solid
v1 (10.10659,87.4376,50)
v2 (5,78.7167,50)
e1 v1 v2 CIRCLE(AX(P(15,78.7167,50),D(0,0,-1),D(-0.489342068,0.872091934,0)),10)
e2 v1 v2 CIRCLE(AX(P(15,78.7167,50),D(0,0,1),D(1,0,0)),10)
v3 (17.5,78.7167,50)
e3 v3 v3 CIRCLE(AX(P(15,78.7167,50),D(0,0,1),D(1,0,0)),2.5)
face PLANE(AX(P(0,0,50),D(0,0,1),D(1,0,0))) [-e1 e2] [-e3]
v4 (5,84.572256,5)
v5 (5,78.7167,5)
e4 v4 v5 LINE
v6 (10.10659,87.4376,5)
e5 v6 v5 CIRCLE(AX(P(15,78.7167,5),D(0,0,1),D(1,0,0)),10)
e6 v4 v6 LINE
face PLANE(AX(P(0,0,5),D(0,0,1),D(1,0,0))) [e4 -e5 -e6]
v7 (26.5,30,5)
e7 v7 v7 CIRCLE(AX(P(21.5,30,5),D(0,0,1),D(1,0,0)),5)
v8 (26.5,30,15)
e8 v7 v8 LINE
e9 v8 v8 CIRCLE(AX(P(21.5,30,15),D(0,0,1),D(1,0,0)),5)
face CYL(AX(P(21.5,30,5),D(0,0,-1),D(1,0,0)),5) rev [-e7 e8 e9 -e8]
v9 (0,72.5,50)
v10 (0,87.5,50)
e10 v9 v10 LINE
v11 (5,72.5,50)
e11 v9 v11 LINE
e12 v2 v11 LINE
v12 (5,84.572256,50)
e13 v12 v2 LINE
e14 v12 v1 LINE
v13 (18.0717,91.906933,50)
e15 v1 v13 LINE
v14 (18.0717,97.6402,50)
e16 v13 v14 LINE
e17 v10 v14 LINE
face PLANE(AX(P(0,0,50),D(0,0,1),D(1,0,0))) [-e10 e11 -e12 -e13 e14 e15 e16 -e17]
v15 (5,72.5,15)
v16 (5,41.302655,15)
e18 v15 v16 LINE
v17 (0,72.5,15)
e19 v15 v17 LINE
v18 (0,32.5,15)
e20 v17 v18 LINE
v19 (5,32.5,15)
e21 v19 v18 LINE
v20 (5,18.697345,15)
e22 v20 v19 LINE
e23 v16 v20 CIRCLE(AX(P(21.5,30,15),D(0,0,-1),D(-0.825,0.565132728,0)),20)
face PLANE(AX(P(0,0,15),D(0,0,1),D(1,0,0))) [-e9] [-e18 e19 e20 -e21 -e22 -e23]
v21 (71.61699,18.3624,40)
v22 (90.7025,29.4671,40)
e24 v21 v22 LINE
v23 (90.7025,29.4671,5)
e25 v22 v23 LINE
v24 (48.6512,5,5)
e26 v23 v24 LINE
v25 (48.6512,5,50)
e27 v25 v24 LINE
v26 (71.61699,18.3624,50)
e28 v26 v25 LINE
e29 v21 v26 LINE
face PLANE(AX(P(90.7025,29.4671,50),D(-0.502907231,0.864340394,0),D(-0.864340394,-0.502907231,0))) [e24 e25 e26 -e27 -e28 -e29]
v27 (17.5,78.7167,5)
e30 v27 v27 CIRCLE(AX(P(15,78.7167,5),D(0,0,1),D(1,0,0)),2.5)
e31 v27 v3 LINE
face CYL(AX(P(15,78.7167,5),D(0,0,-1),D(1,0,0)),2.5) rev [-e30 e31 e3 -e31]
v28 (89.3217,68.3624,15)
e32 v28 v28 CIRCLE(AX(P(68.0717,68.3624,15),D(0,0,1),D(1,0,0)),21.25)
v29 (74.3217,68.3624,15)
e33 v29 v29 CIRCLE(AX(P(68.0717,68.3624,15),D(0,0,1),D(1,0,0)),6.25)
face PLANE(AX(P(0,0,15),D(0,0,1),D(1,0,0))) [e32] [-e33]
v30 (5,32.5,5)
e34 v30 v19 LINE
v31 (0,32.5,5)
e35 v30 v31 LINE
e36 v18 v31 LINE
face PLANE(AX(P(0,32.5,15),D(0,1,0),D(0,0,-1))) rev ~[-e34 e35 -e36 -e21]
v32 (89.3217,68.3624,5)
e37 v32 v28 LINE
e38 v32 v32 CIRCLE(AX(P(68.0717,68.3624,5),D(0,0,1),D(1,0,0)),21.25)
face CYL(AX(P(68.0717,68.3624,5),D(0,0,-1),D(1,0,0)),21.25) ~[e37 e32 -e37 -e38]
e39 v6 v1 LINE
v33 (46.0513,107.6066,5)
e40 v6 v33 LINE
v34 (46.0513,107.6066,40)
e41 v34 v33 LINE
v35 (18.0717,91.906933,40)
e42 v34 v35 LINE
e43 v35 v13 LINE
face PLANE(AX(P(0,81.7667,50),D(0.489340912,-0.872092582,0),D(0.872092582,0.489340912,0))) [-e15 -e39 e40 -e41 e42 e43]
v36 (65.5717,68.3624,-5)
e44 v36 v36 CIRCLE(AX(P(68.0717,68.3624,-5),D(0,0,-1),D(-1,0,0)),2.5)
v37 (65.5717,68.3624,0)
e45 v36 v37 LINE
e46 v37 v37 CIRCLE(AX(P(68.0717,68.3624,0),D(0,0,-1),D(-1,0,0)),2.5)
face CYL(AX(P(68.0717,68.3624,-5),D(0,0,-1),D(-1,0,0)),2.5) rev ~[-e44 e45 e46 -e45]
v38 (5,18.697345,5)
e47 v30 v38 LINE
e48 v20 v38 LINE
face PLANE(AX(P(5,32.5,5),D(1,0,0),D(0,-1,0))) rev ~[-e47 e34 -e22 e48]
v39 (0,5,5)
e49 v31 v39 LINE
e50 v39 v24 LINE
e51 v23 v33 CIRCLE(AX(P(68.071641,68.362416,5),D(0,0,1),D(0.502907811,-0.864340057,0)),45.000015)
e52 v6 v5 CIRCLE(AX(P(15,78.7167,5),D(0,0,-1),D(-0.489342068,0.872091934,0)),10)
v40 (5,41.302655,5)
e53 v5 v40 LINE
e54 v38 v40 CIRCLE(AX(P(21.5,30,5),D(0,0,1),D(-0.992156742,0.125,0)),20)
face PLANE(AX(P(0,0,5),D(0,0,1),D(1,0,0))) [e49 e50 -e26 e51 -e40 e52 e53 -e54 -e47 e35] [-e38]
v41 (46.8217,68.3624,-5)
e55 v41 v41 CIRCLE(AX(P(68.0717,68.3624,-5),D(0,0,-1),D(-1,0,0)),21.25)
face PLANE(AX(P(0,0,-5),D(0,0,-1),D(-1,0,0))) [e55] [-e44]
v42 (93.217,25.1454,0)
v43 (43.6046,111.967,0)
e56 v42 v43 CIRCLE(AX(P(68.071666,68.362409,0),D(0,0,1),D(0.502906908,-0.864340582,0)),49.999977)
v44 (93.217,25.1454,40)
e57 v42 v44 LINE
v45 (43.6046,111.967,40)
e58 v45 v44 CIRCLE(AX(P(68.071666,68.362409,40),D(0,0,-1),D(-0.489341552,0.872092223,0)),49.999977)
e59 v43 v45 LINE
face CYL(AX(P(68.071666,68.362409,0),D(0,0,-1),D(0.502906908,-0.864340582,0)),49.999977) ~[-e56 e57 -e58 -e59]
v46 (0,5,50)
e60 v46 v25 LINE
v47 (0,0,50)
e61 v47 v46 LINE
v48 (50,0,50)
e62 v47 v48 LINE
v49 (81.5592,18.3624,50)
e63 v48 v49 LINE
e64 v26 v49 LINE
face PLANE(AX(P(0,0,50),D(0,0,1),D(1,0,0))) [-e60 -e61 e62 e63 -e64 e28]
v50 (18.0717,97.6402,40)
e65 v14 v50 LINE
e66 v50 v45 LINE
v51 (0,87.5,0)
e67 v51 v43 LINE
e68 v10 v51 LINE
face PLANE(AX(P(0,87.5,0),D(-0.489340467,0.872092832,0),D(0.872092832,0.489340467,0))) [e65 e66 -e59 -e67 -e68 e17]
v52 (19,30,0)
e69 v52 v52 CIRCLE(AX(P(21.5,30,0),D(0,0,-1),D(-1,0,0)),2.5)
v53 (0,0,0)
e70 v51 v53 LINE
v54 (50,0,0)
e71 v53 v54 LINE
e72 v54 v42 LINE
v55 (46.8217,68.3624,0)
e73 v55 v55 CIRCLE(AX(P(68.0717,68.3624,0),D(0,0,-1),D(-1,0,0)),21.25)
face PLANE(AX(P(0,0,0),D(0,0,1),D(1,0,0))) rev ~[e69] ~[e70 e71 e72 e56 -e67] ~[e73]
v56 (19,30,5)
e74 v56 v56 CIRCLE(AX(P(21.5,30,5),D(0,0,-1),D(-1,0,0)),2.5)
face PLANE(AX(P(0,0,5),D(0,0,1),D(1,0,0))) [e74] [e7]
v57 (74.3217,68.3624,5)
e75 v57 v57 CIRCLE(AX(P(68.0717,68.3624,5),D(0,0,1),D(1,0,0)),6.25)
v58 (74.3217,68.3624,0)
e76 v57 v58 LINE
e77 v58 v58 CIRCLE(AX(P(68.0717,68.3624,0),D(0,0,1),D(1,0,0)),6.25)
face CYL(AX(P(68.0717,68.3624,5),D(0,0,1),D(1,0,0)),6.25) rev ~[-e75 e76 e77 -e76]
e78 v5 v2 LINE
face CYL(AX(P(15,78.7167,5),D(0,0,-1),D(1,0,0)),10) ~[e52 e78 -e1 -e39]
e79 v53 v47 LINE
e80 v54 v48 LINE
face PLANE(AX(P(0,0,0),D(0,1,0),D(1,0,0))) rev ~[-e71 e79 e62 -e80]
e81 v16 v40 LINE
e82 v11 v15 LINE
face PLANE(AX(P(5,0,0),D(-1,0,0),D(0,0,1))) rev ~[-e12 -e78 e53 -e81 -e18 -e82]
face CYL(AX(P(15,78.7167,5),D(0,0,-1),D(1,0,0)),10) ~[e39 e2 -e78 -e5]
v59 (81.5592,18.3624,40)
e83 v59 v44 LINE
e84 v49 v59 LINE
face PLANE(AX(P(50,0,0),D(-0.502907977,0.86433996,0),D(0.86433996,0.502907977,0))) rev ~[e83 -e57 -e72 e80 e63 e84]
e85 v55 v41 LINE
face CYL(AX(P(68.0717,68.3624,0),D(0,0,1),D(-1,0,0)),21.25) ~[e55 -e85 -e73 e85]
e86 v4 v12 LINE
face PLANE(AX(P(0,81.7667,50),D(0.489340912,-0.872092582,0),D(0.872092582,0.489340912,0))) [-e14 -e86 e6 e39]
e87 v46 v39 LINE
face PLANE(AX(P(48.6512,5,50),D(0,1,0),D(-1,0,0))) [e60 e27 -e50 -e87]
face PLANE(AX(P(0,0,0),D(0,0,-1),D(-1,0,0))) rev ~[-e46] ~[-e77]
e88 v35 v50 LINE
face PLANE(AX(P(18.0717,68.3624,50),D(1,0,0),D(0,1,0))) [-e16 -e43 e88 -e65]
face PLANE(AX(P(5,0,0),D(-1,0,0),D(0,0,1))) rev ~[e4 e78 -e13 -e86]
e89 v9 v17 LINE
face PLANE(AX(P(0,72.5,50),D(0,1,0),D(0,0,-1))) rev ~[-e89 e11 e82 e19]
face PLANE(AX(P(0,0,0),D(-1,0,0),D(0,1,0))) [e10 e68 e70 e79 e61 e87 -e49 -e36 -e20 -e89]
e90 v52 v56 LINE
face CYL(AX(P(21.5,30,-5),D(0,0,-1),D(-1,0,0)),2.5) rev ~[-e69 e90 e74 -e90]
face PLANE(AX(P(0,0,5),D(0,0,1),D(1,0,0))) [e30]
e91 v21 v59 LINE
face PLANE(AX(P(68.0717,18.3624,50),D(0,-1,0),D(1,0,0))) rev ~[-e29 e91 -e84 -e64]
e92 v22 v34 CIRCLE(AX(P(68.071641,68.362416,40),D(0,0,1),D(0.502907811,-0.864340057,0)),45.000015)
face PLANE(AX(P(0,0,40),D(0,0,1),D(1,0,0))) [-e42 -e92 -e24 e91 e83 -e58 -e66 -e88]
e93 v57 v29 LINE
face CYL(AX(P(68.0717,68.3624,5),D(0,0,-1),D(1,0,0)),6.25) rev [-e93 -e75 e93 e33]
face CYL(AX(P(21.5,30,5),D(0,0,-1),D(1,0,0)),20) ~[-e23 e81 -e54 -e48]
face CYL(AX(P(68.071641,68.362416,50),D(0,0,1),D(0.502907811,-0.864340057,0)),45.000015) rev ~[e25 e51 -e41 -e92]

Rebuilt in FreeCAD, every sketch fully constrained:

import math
import FreeCAD as App
import Part
import Sketcher

V = App.Vector
Q = App.Units.Quantity

doc = App.newDocument("Part")
body = doc.addObject("PartDesign::Body", "Body")

# Sketch on XY plane
sketch1 = body.newObject("Sketcher::SketchObject", "Sketch")
sketch1.AttachmentSupport = (doc.getObject("XY_Plane"), [""])
sketch1.MapMode = "FlatFace"
sketch1.addGeometry([
    Part.LineSegment(V(0, 87.5, 0), V(0, 0, 0)),  # 0
    Part.LineSegment(V(0, 0, 0), V(50, 0, 0)),  # 1
    Part.LineSegment(V(50, 0, 0), V(93.217, 25.1454, 0)),  # 2
    Part.ArcOfCircle(Part.Circle(V(68.0717, 68.3624, 0), V(0, 0, 1), 50), math.radians(-59.807522), math.radians(119.297342)),  # 3
    Part.LineSegment(V(43.6046, 111.967, 0), V(0, 87.5, 0)),  # 4
], False)
sketch1.addConstraint([
    Sketcher.Constraint("Coincident", 0, 2, 1, 1),
    Sketcher.Constraint("Coincident", 1, 2, 2, 1),
    Sketcher.Constraint("Tangent", 2, 2, 3, 1),
    Sketcher.Constraint("Tangent", 3, 2, 4, 1),
    Sketcher.Constraint("Coincident", 4, 2, 0, 1),
    Sketcher.Constraint("Vertical", 0),
    Sketcher.Constraint("Horizontal", 1),
    Sketcher.Constraint("Coincident", 0, 2, -1, 1),
    Sketcher.Constraint("Equal", 2, 4),
    Sketcher.Constraint("Radius", 3, Q("50 mm")),
    Sketcher.Constraint("DistanceX", 1, 1, 1, 2, Q("50 mm")),
    Sketcher.Constraint("Distance", 2, Q("50 mm")),
    Sketcher.Constraint("DistanceY", 0, 2, 0, 1, Q("87.5 mm")),
])
pad1 = body.newObject("PartDesign::Pad", "Pad")
pad1.Profile = sketch1
pad1.Length = 50

# Sketch on XY plane
sketch2 = body.newObject("Sketcher::SketchObject", "Sketch001")
sketch2.AttachmentSupport = (doc.getObject("XY_Plane"), [""])
sketch2.MapMode = "FlatFace"
sketch2.AttachmentOffset = App.Placement(V(0, 0, 50), App.Rotation())
sketch2.addGeometry([
    Part.LineSegment(V(0, 81.7667, 0), V(0, 5, 0)),  # 0
    Part.LineSegment(V(0, 5, 0), V(48.6512, 5, 0)),  # 1
    Part.LineSegment(V(48.6512, 5, 0), V(90.7025, 29.4671, 0)),  # 2
    Part.ArcOfCircle(Part.Circle(V(68.0717, 68.3624, 0), V(0, 0, 1), 44.999972), math.radians(-59.807489), math.radians(119.297315)),  # 3
    Part.LineSegment(V(46.0513, 107.6066, 0), V(0, 81.7667, 0)),  # 4
], False)
sketch2.addConstraint([
    Sketcher.Constraint("Coincident", 0, 2, 1, 1),
    Sketcher.Constraint("Coincident", 1, 2, 2, 1),
    Sketcher.Constraint("Tangent", 2, 2, 3, 1),
    Sketcher.Constraint("Tangent", 3, 2, 4, 1),
    Sketcher.Constraint("Coincident", 4, 2, 0, 1),
    Sketcher.Constraint("Vertical", 0),
    Sketcher.Constraint("Horizontal", 1),
    Sketcher.Constraint("PointOnObject", 0, 2, -2),
    Sketcher.Constraint("DistanceY", -1, 1, 0, 2, Q("5 mm")),
    Sketcher.Constraint("Radius", 3, Q("45 mm")),
    Sketcher.Constraint("DistanceX", 1, 1, 1, 2, Q("48.6512 mm")),
    Sketcher.Constraint("DistanceY", 0, 2, 0, 1, Q("76.7667 mm")),
    Sketcher.Constraint("DistanceY", -1, 1, 2, 2, Q("29.467 mm")),
    Sketcher.Constraint("Distance", 2, Q("48.6513 mm")),
])
pocket1 = body.newObject("PartDesign::Pocket", "Pocket")
pocket1.Profile = sketch2
pocket1.Length = 45

# Sketch on YZ plane
sketch3 = body.newObject("Sketcher::SketchObject", "Sketch002")
sketch3.AttachmentSupport = (doc.getObject("YZ_Plane"), [""])
sketch3.MapMode = "FlatFace"
sketch3.addGeometry([
    Part.LineSegment(V(87.5, 50, 0), V(87.5, 0, 0)),
    Part.LineSegment(V(87.5, 0, 0), V(72.5, 0, 0)),
    Part.LineSegment(V(72.5, 0, 0), V(72.5, 50, 0)),
    Part.LineSegment(V(72.5, 50, 0), V(87.5, 50, 0)),
], False)
sketch3.addConstraint([
    Sketcher.Constraint("Coincident", 0, 2, 1, 1),
    Sketcher.Constraint("Coincident", 1, 2, 2, 1),
    Sketcher.Constraint("Coincident", 2, 2, 3, 1),
    Sketcher.Constraint("Coincident", 3, 2, 0, 1),
    Sketcher.Constraint("Vertical", 0),
    Sketcher.Constraint("Horizontal", 1),
    Sketcher.Constraint("Vertical", 2),
    Sketcher.Constraint("Horizontal", 3),
    Sketcher.Constraint("PointOnObject", 0, 2, -1),
    Sketcher.Constraint("DistanceX", 1, 2, 1, 1, Q("15 mm")),
    Sketcher.Constraint("DistanceY", 0, 2, 0, 1, Q("50 mm")),
    Sketcher.Constraint("DistanceX", -1, 1, 0, 2, Q("87.5 mm")),
])
pad2 = body.newObject("PartDesign::Pad", "Pad001")
pad2.Profile = sketch3
pad2.Length = 5

# Sketch on YZ plane
sketch4 = body.newObject("Sketcher::SketchObject", "Sketch003")
sketch4.AttachmentSupport = (doc.getObject("YZ_Plane"), [""])
sketch4.MapMode = "FlatFace"
sketch4.addGeometry([
    Part.LineSegment(V(87.5, 15, 0), V(87.5, 0, 0)),
    Part.LineSegment(V(87.5, 0, 0), V(32.5, 0, 0)),
    Part.LineSegment(V(32.5, 0, 0), V(32.5, 15, 0)),
    Part.LineSegment(V(32.5, 15, 0), V(87.5, 15, 0)),
], False)
sketch4.addConstraint([
    Sketcher.Constraint("Coincident", 0, 2, 1, 1),
    Sketcher.Constraint("Coincident", 1, 2, 2, 1),
    Sketcher.Constraint("Coincident", 2, 2, 3, 1),
    Sketcher.Constraint("Coincident", 3, 2, 0, 1),
    Sketcher.Constraint("Vertical", 0),
    Sketcher.Constraint("Horizontal", 1),
    Sketcher.Constraint("Vertical", 2),
    Sketcher.Constraint("Horizontal", 3),
    Sketcher.Constraint("PointOnObject", 0, 2, -1),
    Sketcher.Constraint("DistanceY", 0, 2, 0, 1, Q("15 mm")),
    Sketcher.Constraint("DistanceX", -1, 1, 1, 2, Q("32.5 mm")),
    Sketcher.Constraint("DistanceX", 1, 2, 1, 1, Q("55 mm")),
])
pad3 = body.newObject("PartDesign::Pad", "Pad002")
pad3.Profile = sketch4
pad3.Length = 5

# Sketch on XY plane
sketch5 = body.newObject("Sketcher::SketchObject", "Sketch004")
sketch5.AttachmentSupport = (doc.getObject("XY_Plane"), [""])
sketch5.MapMode = "FlatFace"
sketch5.AttachmentOffset = App.Placement(V(0, 0, 5), App.Rotation())
sketch5.addGeometry([
    Part.Circle(V(68.0717, 68.3624, 0), V(0, 0, 1), 21.25),
    Part.Circle(V(68.0717, 68.3624, 0), V(0, 0, 1), 6.25),
], False)
sketch5.addConstraint([
    Sketcher.Constraint("Coincident", 1, 3, 0, 3),
    Sketcher.Constraint("Diameter", 1, Q("12.5 mm")),
    Sketcher.Constraint("Diameter", 0, Q("42.5 mm")),
    Sketcher.Constraint("DistanceX", -1, 1, 0, 3, Q("68.0717 mm")),
    Sketcher.Constraint("DistanceY", -1, 1, 0, 3, Q("68.3624 mm")),
])
pad4 = body.newObject("PartDesign::Pad", "Pad003")
pad4.Profile = sketch5
pad4.Length = 10

# Sketch on XY plane
sketch6 = body.newObject("Sketcher::SketchObject", "Sketch005")
sketch6.AttachmentSupport = (doc.getObject("XY_Plane"), [""])
sketch6.MapMode = "FlatFace"
sketch6.AttachmentOffset = App.Placement(V(0, 0, 5), App.Rotation())
sketch6.addGeometry(Part.Circle(V(68.0717, 68.3624, 0), V(0, 0, 1), 6.25), False)
sketch6.addConstraint([
    Sketcher.Constraint("Diameter", 0, Q("12.5 mm")),
    Sketcher.Constraint("DistanceX", -1, 1, 0, 3, Q("68.0717 mm")),
    Sketcher.Constraint("DistanceY", -1, 1, 0, 3, Q("68.3624 mm")),
])
pocket2 = body.newObject("PartDesign::Pocket", "Pocket001")
pocket2.Profile = sketch6
pocket2.Type = "ThroughAll"

# Sketch on XY plane
sketch7 = body.newObject("Sketcher::SketchObject", "Sketch006")
sketch7.AttachmentSupport = (doc.getObject("XY_Plane"), [""])
sketch7.MapMode = "FlatFace"
sketch7.addGeometry(Part.Circle(V(68.0717, 68.3624, 0), V(0, 0, 1), 21.25), False)
sketch7.addConstraint([
    Sketcher.Constraint("Diameter", 0, Q("42.5 mm")),
    Sketcher.Constraint("DistanceX", -1, 1, 0, 3, Q("68.0717 mm")),
    Sketcher.Constraint("DistanceY", -1, 1, 0, 3, Q("68.3624 mm")),
])
pad5 = body.newObject("PartDesign::Pad", "Pad004")
pad5.Profile = sketch7
pad5.Length = 5
pad5.Reversed = True

# Sketch on XY plane
sketch8 = body.newObject("Sketcher::SketchObject", "Sketch007")
sketch8.AttachmentSupport = (doc.getObject("XY_Plane"), [""])
sketch8.MapMode = "FlatFace"
sketch8.AttachmentOffset = App.Placement(V(0, 0, 50), App.Rotation())
sketch8.addGeometry([
    Part.ArcOfCircle(Part.Circle(V(68.0717, 68.3624, 0), V(0, 0, 1), 50), math.radians(180), math.radians(270)),  # 0
    Part.LineSegment(V(68.0717, 18.3624, 0), V(81.5592, 18.3624, 0)),  # 1
    Part.LineSegment(V(81.559191, 18.362415, 0), V(93.217, 25.1454, 0)),  # 2
    Part.ArcOfCircle(Part.Circle(V(68.0717, 68.3624, 0), V(0, 0, 1), 50), math.radians(-59.807522), math.radians(119.297342)),  # 3
    Part.LineSegment(V(43.6046, 111.967, 0), V(18.071691, 97.640216, 0)),  # 4
    Part.LineSegment(V(18.0717, 97.6402, 0), V(18.0717, 68.3624, 0)),  # 5
], False)
sketch8.addConstraint([
    Sketcher.Constraint("Tangent", 0, 2, 1, 1),
    Sketcher.Constraint("Coincident", 1, 2, 2, 1),
    Sketcher.Constraint("Tangent", 2, 2, 3, 1),
    Sketcher.Constraint("Tangent", 3, 2, 4, 1),
    Sketcher.Constraint("Coincident", 4, 2, 5, 1),
    Sketcher.Constraint("Tangent", 5, 2, 0, 1),
    Sketcher.Constraint("Horizontal", 1),
    Sketcher.Constraint("Vertical", 5),
    Sketcher.Constraint("Coincident", 3, 3, 0, 3),
    Sketcher.Constraint("Equal", 0, 3),
    Sketcher.Constraint("Radius", 0, Q("50 mm")),
    Sketcher.Constraint("DistanceX", 1, 1, 1, 2, Q("13.4875 mm")),
    Sketcher.Constraint("DistanceY", 5, 2, 5, 1, Q("29.2778 mm")),
    Sketcher.Constraint("DistanceX", -1, 1, 2, 2, Q("93.217 mm")),
    Sketcher.Constraint("DistanceY", -1, 1, 3, 2, Q("111.967 mm")),
])
pocket3 = body.newObject("PartDesign::Pocket", "Pocket002")
pocket3.Profile = sketch8
pocket3.Length = 10

# Sketch on XY plane
sketch9 = body.newObject("Sketcher::SketchObject", "Sketch008")
sketch9.AttachmentSupport = (doc.getObject("XY_Plane"), [""])
sketch9.MapMode = "FlatFace"
sketch9.AttachmentOffset = App.Placement(V(0, 0, 5), App.Rotation())
sketch9.addGeometry([
    Part.Circle(V(21.5, 30, 0), V(0, 0, 1), 20),
    Part.Circle(V(21.5, 30, 0), V(0, 0, 1), 5),
], False)
sketch9.addConstraint([
    Sketcher.Constraint("Coincident", 1, 3, 0, 3),
    Sketcher.Constraint("Diameter", 0, Q("40 mm")),
    Sketcher.Constraint("Diameter", 1, Q("10 mm")),
    Sketcher.Constraint("DistanceX", -1, 1, 0, 3, Q("21.5 mm")),
    Sketcher.Constraint("DistanceY", -1, 1, 0, 3, Q("30 mm")),
])
pad6 = body.newObject("PartDesign::Pad", "Pad005")
pad6.Profile = sketch9
pad6.Length = 10

# Sketch on XY plane
sketch10 = body.newObject("Sketcher::SketchObject", "Sketch009")
sketch10.AttachmentSupport = (doc.getObject("XY_Plane"), [""])
sketch10.MapMode = "FlatFace"
sketch10.AttachmentOffset = App.Placement(V(0, 0, 5), App.Rotation())
sketch10.addGeometry([
    Part.Circle(V(15, 78.7167, 0), V(0, 0, 1), 10),
    Part.Circle(V(15, 78.7167, 0), V(0, 0, 1), 2.5),
], False)
sketch10.addConstraint([
    Sketcher.Constraint("Coincident", 1, 3, 0, 3),
    Sketcher.Constraint("Diameter", 0, Q("20 mm")),
    Sketcher.Constraint("Diameter", 1, Q("5 mm")),
    Sketcher.Constraint("DistanceX", -1, 1, 0, 3, Q("15 mm")),
    Sketcher.Constraint("DistanceY", -1, 1, 0, 3, Q("78.7167 mm")),
])
pad7 = body.newObject("PartDesign::Pad", "Pad006")
pad7.Profile = sketch10
pad7.Length = 45

# Sketch on XY plane
sketch11 = body.newObject("Sketcher::SketchObject", "Sketch010")
sketch11.AttachmentSupport = (doc.getObject("XY_Plane"), [""])
sketch11.MapMode = "FlatFace"
sketch11.AttachmentOffset = App.Placement(V(0, 0, 5), App.Rotation())
sketch11.addGeometry([
    Part.LineSegment(V(5, 32.5, 0), V(0, 32.5, 0)),
    Part.LineSegment(V(0, 32.5, 0), V(0, 5, 0)),
    Part.LineSegment(V(0, 5, 0), V(5, 5, 0)),
    Part.LineSegment(V(5, 5, 0), V(5, 32.5, 0)),
], False)
sketch11.addConstraint([
    Sketcher.Constraint("Coincident", 0, 2, 1, 1),
    Sketcher.Constraint("Coincident", 1, 2, 2, 1),
    Sketcher.Constraint("Coincident", 2, 2, 3, 1),
    Sketcher.Constraint("Coincident", 3, 2, 0, 1),
    Sketcher.Constraint("Horizontal", 0),
    Sketcher.Constraint("Vertical", 1),
    Sketcher.Constraint("Horizontal", 2),
    Sketcher.Constraint("Vertical", 3),
    Sketcher.Constraint("PointOnObject", 0, 2, -2),
    Sketcher.Constraint("DistanceX", 0, 2, 0, 1, Q("5 mm")),
    Sketcher.Constraint("DistanceY", -1, 1, 1, 2, Q("5 mm")),
    Sketcher.Constraint("DistanceY", 1, 2, 1, 1, Q("27.5 mm")),
])
pocket4 = body.newObject("PartDesign::Pocket", "Pocket003")
pocket4.Profile = sketch11
pocket4.Type = "ThroughAll"
pocket4.Reversed = True

# Sketch on XY plane
sketch12 = body.newObject("Sketcher::SketchObject", "Sketch011")
sketch12.AttachmentSupport = (doc.getObject("XY_Plane"), [""])
sketch12.MapMode = "FlatFace"
sketch12.AttachmentOffset = App.Placement(V(0, 0, -5), App.Rotation())
sketch12.addGeometry([
    Part.Circle(V(21.5, 30, 0), V(0, 0, 1), 2.5),
    Part.Circle(V(68.0717, 68.3624, 0), V(0, 0, 1), 2.5),
], False)
sketch12.addConstraint([
    Sketcher.Constraint("Equal", 0, 1),
    Sketcher.Constraint("Diameter", 0, Q("5 mm")),
    Sketcher.Constraint("DistanceY", -1, 1, 0, 3, Q("30 mm")),
    Sketcher.Constraint("DistanceX", -1, 1, 0, 3, Q("21.5 mm")),
    Sketcher.Constraint("DistanceX", -1, 1, 1, 3, Q("68.0717 mm")),
    Sketcher.Constraint("DistanceY", -1, 1, 1, 3, Q("68.3624 mm")),
])
pocket5 = body.newObject("PartDesign::Pocket", "Pocket004")
pocket5.Profile = sketch12
pocket5.Type = "ThroughAll"
pocket5.Reversed = True

doc.recompute()
